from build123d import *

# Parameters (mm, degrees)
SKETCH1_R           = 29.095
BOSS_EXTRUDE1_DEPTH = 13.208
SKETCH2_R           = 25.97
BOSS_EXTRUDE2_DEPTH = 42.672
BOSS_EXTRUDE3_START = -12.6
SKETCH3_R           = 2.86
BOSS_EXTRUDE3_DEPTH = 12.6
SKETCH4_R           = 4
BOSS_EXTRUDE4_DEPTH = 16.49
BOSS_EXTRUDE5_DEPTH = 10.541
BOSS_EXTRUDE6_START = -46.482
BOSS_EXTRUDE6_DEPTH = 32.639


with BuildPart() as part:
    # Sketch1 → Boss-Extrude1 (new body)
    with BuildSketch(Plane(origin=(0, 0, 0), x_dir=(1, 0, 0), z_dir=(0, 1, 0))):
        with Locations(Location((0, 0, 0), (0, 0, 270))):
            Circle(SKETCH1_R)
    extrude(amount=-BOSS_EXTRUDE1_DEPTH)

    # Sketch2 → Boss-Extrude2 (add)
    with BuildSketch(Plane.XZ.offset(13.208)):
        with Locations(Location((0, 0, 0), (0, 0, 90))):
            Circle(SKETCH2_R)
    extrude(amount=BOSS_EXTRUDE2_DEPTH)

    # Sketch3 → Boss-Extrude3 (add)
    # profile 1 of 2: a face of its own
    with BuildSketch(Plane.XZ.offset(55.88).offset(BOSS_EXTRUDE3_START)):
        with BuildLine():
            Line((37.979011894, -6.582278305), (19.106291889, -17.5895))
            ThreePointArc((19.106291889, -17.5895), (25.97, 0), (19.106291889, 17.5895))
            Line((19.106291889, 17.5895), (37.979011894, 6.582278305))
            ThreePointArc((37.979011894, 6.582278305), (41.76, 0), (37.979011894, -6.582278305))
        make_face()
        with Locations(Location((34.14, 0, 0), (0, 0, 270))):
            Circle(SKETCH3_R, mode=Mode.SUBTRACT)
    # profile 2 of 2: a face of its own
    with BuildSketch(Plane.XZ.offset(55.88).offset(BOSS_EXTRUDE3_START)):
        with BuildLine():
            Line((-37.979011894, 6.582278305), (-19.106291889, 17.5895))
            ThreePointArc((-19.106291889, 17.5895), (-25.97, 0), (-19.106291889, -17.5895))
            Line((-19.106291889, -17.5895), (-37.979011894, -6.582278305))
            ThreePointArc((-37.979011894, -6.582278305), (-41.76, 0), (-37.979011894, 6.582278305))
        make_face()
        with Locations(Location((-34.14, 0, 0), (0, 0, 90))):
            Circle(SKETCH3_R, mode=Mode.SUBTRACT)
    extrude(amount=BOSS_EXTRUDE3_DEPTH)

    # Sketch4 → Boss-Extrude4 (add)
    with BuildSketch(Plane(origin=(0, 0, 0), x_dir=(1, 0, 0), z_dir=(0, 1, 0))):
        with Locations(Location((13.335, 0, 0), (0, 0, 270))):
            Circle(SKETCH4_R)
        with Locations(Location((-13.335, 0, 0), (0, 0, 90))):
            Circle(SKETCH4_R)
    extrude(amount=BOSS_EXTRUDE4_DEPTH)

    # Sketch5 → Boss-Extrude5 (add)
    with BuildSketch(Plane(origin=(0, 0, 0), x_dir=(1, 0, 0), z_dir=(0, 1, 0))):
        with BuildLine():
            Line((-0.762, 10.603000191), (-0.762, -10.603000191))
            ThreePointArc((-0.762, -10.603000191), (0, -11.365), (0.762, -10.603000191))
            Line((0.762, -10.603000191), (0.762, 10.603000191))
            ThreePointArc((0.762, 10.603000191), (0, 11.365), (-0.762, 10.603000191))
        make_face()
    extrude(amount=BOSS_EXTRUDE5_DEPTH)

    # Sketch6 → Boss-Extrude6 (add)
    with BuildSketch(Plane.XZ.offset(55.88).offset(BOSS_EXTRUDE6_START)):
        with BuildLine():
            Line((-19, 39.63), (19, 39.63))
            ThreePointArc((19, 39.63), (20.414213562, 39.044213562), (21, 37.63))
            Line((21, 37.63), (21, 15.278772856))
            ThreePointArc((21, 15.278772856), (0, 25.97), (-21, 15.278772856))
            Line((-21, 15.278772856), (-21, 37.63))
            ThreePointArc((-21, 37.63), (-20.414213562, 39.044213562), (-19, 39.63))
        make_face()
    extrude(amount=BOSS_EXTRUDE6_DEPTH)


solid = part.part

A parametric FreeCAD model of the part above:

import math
import FreeCAD as App
import Part
import Sketcher
from FreeCAD import Vector
Q = App.Units.Quantity

doc = App.newDocument("Part")
body = doc.addObject("PartDesign::Body", "Body")

# Sketch on XZ plane
sketch1 = body.newObject("Sketcher::SketchObject", "Sketch")
sketch1.AttachmentSupport = (doc.getObject("XZ_Plane"), [""])
sketch1.MapMode = "FlatFace"
sketch1.addGeometry(Part.Circle(Vector(0, 0, 0), Vector(0, 0, 1), 29), False)
sketch1.addConstraint([
    Sketcher.Constraint("Coincident", 0, 3, -1, 1),
    Sketcher.Constraint("Diameter", 0, 58.19),
])
pad1 = body.newObject("PartDesign::Pad", "Pad")
pad1.Profile = sketch1
pad1.Length = Q("0.52 in")

# Sketch on XZ plane
sketch2 = body.newObject("Sketcher::SketchObject", "Sketch001")
sketch2.AttachmentSupport = (doc.getObject("XZ_Plane"), [""])
sketch2.MapMode = "FlatFace"
sketch2.AttachmentOffset = App.Placement(Vector(0, 0, 0.52 * 25.4), App.Rotation())
sketch2.addGeometry(Part.Circle(Vector(0, 0, 0), Vector(0, 0, 1), 26), False)
sketch2.addConstraint([
    Sketcher.Constraint("Coincident", 0, 3, -1, 1),
    Sketcher.Constraint("Diameter", 0, 51.94),
])
pad2 = body.newObject("PartDesign::Pad", "Pad001")
pad2.Profile = sketch2
pad2.Length = Q("1.68 in")

# Sketch on XZ plane
sketch3 = body.newObject("Sketcher::SketchObject", "Sketch002")
sketch3.AttachmentSupport = (doc.getObject("XZ_Plane"), [""])
sketch3.MapMode = "FlatFace"
sketch3.AttachmentOffset = App.Placement(Vector(0, 0, 43.28), App.Rotation())
sketch3.addGeometry([
    Part.LineSegment(Vector(19.1, -17.6, 0), Vector(38, -6.6, 0)),  # 0
    Part.ArcOfCircle(Part.Circle(Vector(34.1, 0, 0), Vector(0, 0, 1), 7.6), math.radians(-60), math.radians(60)),  # 1
    Part.LineSegment(Vector(38, 6.6, 0), Vector(19.1, 17.6, 0)),  # 2
    Part.ArcOfCircle(Part.Circle(Vector(0, 0, 0), Vector(0, 0, 1), 26), math.radians(-43), math.radians(43)),  # 3
    Part.Circle(Vector(34.1, 0, 0), Vector(0, 0, 1), 2.9),  # 4
    Part.LineSegment(Vector(-19.1, 17.6, 0), Vector(-38, 6.6, 0)),  # 5
    Part.ArcOfCircle(Part.Circle(Vector(-34.1, 0, 0), Vector(0, 0, 1), 7.6), math.radians(120), math.radians(240)),  # 6
    Part.LineSegment(Vector(-38, -6.6, 0), Vector(-19.1, -17.6, 0)),  # 7
    Part.ArcOfCircle(Part.Circle(Vector(0, 0, 0), Vector(0, 0, 1), 26), math.radians(137), math.radians(223)),  # 8
    Part.Circle(Vector(-34.1, 0, 0), Vector(0, 0, 1), 2.9),  # 9
], False)
sketch3.addConstraint([
    Sketcher.Constraint("Tangent", 0, 2, 1, 1),
    Sketcher.Constraint("Tangent", 1, 2, 2, 1),
    Sketcher.Constraint("Coincident", 2, 2, 3, 2),
    Sketcher.Constraint("Coincident", 3, 1, 0, 1),
    Sketcher.Constraint("Tangent", 5, 2, 6, 1),
    Sketcher.Constraint("Tangent", 6, 2, 7, 1),
    Sketcher.Constraint("Coincident", 7, 2, 8, 2),
    Sketcher.Constraint("Coincident", 8, 1, 5, 1),
    Sketcher.Constraint("Coincident", 3, 3, -1, 1),
    Sketcher.Constraint("Coincident", 8, 3, -1, 1),
    Sketcher.Constraint("Coincident", 4, 3, 1, 3),
    Sketcher.Constraint("Coincident", 9, 3, 6, 3),
    Sketcher.Constraint("Equal", 1, 6),
    Sketcher.Constraint("Equal", 3, 8),
    Sketcher.Constraint("Equal", 4, 9),
    Sketcher.Constraint("Symmetric", 1, 3, 6, 3, -1, 1),
    Sketcher.Constraint("Symmetric", 1, 2, 5, 2, -2),
    Sketcher.Constraint("Parallel", 0, 5),
    Sketcher.Constraint("Parallel", 2, 7),
    Sketcher.Constraint("Radius", 1, Q("0.3 in")),
    Sketcher.Constraint("Diameter", 4, 5.72),
    Sketcher.Constraint("Radius", 3, 25.97),
    Sketcher.Constraint("DistanceY", -1, 1, 2, 2, Q("0.6925 in")),
    Sketcher.Constraint("DistanceX", -1, 1, 1, 3, 34.14),
])
pad3 = body.newObject("PartDesign::Pad", "Pad002")
pad3.Profile = sketch3
pad3.Length = 12.6

# Sketch on XZ plane
sketch4 = body.newObject("Sketcher::SketchObject", "Sketch003")
sketch4.AttachmentSupport = (doc.getObject("XZ_Plane"), [""])
sketch4.MapMode = "FlatFace"
sketch4.addGeometry([
    Part.Circle(Vector(13.3, 0, 0), Vector(0, 0, 1), 4),
    Part.Circle(Vector(-13.3, 0, 0), Vector(0, 0, 1), 4),
], False)
sketch4.addConstraint([
    Sketcher.Constraint("Equal", 0, 1),
    Sketcher.Constraint("Symmetric", 0, 3, 1, 3, -1, 1),
    Sketcher.Constraint("PointOnObject", 0, 3, -1),
    Sketcher.Constraint("Diameter", 0, 8.0),
    Sketcher.Constraint("DistanceX", 1, 3, 0, 3, Q("1.05 in")),
])
pad4 = body.newObject("PartDesign::Pad", "Pad003")
pad4.Profile = sketch4
pad4.Length = 16.49
pad4.Reversed = True

# Sketch on XZ plane
sketch5 = body.newObject("Sketcher::SketchObject", "Sketch004")
sketch5.AttachmentSupport = (doc.getObject("XZ_Plane"), [""])
sketch5.MapMode = "FlatFace"
sketch5.addGeometry([
    Part.LineSegment(Vector(-0.8, -10.6, 0), Vector(-0.8, 10.6, 0)),
    Part.ArcOfCircle(Part.Circle(Vector(0, 10.6, 0), Vector(0, 0, 1), 0.8), math.radians(0), math.radians(180)),
    Part.LineSegment(Vector(0.8, 10.6, 0), Vector(0.8, -10.6, 0)),
    Part.ArcOfCircle(Part.Circle(Vector(0, -10.6, 0), Vector(0, 0, 1), 0.8), math.radians(-180), math.radians(0)),
], False)
sketch5.addConstraint([
    Sketcher.Constraint("Tangent", 0, 2, 1, 2),
    Sketcher.Constraint("Tangent", 1, 1, 2, 1),
    Sketcher.Constraint("Tangent", 2, 2, 3, 2),
    Sketcher.Constraint("Tangent", 3, 1, 0, 1),
    Sketcher.Constraint("Vertical", 0),
    Sketcher.Constraint("Vertical", 2),
    Sketcher.Constraint("Symmetric", 1, 3, 3, 3, -1, 1),
    Sketcher.Constraint("Radius", 1, Q("0.03 in")),
    Sketcher.Constraint("DistanceY", 0, 1, 0, 2, 21.206),
])
pad5 = body.newObject("PartDesign::Pad", "Pad004")
pad5.Profile = sketch5
pad5.Length = Q("0.415 in")
pad5.Reversed = True

# Sketch on XZ plane
sketch6 = body.newObject("Sketcher::SketchObject", "Sketch005")
sketch6.AttachmentSupport = (doc.getObject("XZ_Plane"), [""])
sketch6.MapMode = "FlatFace"
sketch6.AttachmentOffset = App.Placement(Vector(0, 0, 0.37 * 25.4), App.Rotation())
sketch6.addGeometry([
    Part.LineSegment(Vector(19, 39.6, 0), Vector(-19, 39.6, 0)),  # 0
    Part.ArcOfCircle(Part.Circle(Vector(-19, 37.6, 0), Vector(0, 0, 1), 2), math.radians(90), math.radians(180)),  # 1
    Part.LineSegment(Vector(-21, 37.6, 0), Vector(-21, 15.3, 0)),  # 2
    Part.ArcOfCircle(Part.Circle(Vector(0, 0, 0), Vector(0, 0, 1), 26), math.radians(36), math.radians(144)),  # 3
    Part.LineSegment(Vector(21, 15.3, 0), Vector(21, 37.6, 0)),  # 4
    Part.ArcOfCircle(Part.Circle(Vector(19, 37.6, 0), Vector(0, 0, 1), 2), math.radians(0), math.radians(90)),  # 5
], False)
sketch6.addConstraint([
    Sketcher.Constraint("Tangent", 0, 2, 1, 1),
    Sketcher.Constraint("Tangent", 1, 2, 2, 1),
    Sketcher.Constraint("Coincident", 2, 2, 3, 2),
    Sketcher.Constraint("Coincident", 3, 1, 4, 1),
    Sketcher.Constraint("Tangent", 4, 2, 5, 1),
    Sketcher.Constraint("Tangent", 5, 2, 0, 1),
    Sketcher.Constraint("Horizontal", 0),
    Sketcher.Constraint("Vertical", 2),
    Sketcher.Constraint("Vertical", 4),
    Sketcher.Constraint("Coincident", 3, 3, -1, 1),
    Sketcher.Constraint("Equal", 1, 5),
    Sketcher.Constraint("Horizontal", 2, 2, 3, 1),
    Sketcher.Constraint("Radius", 1, 2.0),
    Sketcher.Constraint("Radius", 3, 25.97),
    Sketcher.Constraint("DistanceX", 0, 2, 0, 1, 38.0),
    Sketcher.Constraint("DistanceY", -1, 1, 1, 3, 37.63),
])
pad6 = body.newObject("PartDesign::Pad", "Pad005")
pad6.Profile = sketch6
pad6.Length = Q("1.285 in")

doc.recompute()
